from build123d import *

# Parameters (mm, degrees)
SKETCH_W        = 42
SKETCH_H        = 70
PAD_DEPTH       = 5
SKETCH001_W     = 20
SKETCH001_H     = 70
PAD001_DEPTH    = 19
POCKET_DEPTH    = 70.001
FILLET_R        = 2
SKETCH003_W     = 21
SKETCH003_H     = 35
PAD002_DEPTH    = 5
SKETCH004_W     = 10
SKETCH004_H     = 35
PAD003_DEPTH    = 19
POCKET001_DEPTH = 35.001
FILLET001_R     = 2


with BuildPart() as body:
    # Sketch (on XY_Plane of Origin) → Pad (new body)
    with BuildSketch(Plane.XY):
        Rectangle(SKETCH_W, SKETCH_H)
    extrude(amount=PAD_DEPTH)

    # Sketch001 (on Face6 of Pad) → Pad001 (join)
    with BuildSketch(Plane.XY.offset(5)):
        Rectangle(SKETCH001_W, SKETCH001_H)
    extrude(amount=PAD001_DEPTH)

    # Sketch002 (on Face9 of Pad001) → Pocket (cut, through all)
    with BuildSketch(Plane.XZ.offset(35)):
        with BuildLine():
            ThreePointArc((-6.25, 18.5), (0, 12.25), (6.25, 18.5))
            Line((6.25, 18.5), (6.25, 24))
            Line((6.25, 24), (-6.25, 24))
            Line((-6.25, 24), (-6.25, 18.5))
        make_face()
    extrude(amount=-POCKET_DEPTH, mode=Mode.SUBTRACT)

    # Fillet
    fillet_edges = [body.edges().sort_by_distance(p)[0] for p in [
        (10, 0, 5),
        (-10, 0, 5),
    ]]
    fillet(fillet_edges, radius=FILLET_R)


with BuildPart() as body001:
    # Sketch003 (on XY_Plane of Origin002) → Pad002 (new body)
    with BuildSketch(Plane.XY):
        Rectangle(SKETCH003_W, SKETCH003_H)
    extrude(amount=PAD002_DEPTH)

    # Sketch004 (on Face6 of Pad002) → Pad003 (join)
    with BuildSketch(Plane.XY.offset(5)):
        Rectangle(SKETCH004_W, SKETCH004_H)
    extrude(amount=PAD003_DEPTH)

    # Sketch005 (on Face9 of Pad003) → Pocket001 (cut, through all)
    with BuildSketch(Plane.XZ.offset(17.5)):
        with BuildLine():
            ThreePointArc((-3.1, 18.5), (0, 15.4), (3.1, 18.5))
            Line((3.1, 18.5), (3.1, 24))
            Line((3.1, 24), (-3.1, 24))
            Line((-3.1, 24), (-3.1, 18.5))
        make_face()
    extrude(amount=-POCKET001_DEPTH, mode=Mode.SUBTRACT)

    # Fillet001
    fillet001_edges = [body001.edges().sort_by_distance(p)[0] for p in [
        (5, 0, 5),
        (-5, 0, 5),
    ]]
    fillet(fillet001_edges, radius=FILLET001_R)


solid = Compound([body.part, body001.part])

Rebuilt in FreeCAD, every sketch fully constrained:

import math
import FreeCAD as App
import Part
import Sketcher
from FreeCAD import Vector


def edges_at(feature, points):
    """Names of the edges that pass closest to the given points."""
    edges = feature.Shape.Edges
    near = lambda p: min(range(len(edges)), key=lambda i: edges[i].distToShape(Part.Vertex(*p))[0])
    return sorted({f"Edge{near(p) + 1}" for p in points})


def add_polygon(sketch, points):
    """Adds a closed chain of lines whose ends are joined by coincident constraints."""
    first, n = sketch.GeometryCount, len(points)
    for a, b in zip(points, points[1:] + points[:1]):
        sketch.addGeometry(Part.LineSegment(App.Vector(*a, 0), App.Vector(*b, 0)), False)
    for i in range(n):
        sketch.addConstraint(Sketcher.Constraint("Coincident", first + i, 2, first + (i + 1) % n, 1))

doc = App.newDocument("Part")
body = doc.addObject("PartDesign::Body", "Body")

# Sketch on XY plane
sketch1 = doc.addObject("Sketcher::SketchObject", "Sketch")
body.addObject(sketch1)
sketch1.AttachmentSupport = (doc.XY_Plane, [""])
sketch1.MapMode = "FlatFace"
add_polygon(sketch1, [(-21, 35), (-21, -35), (21, -35), (21, 35)])  # lines 0-3
sketch1.addConstraint([
    Sketcher.Constraint("Vertical", 0),
    Sketcher.Constraint("Horizontal", 1),
    Sketcher.Constraint("Vertical", 2),
    Sketcher.Constraint("Horizontal", 3),
    Sketcher.Constraint("Symmetric", 0, 2, 2, 2, -1, 1),
    Sketcher.Constraint("DistanceX", 1, 1, 1, 2, 42.0),
    Sketcher.Constraint("DistanceY", 0, 2, 0, 1, 70.0),
])
pad1 = doc.addObject("PartDesign::Pad", "Pad")
body.addObject(pad1)
pad1.Profile = sketch1
pad1.Length = 5

# Sketch on XY plane
sketch2 = doc.addObject("Sketcher::SketchObject", "Sketch001")
body.addObject(sketch2)
sketch2.AttachmentSupport = (doc.XY_Plane, [""])
sketch2.MapMode = "FlatFace"
sketch2.AttachmentOffset = App.Placement(Vector(0, 0, 5), App.Rotation())
add_polygon(sketch2, [(-10, 35), (-10, -35), (10, -35), (10, 35)])  # lines 0-3
sketch2.addConstraint([
    Sketcher.Constraint("Vertical", 0),
    Sketcher.Constraint("Horizontal", 1),
    Sketcher.Constraint("Vertical", 2),
    Sketcher.Constraint("Horizontal", 3),
    Sketcher.Constraint("Symmetric", 0, 2, 2, 2, -1, 1),
    Sketcher.Constraint("DistanceX", 1, 1, 1, 2, 20.0),
    Sketcher.Constraint("DistanceY", 0, 2, 0, 1, 70.0),
])
pad2 = doc.addObject("PartDesign::Pad", "Pad001")
body.addObject(pad2)
pad2.Profile = sketch2
pad2.Length = 19

# Sketch on XZ plane
sketch3 = doc.addObject("Sketcher::SketchObject", "Sketch002")
body.addObject(sketch3)
sketch3.AttachmentSupport = (doc.XZ_Plane, [""])
sketch3.MapMode = "FlatFace"
sketch3.AttachmentOffset = App.Placement(Vector(0, 0, 35), App.Rotation())
sketch3.addGeometry([
    Part.ArcOfCircle(Part.Circle(Vector(0, 18, 0), Vector(0, 0, 1), 6), math.radians(180), math.radians(360)),
    Part.LineSegment(Vector(6, 18, 0), Vector(6, 24, 0)),
    Part.LineSegment(Vector(6, 24, 0), Vector(-6, 24, 0)),
    Part.LineSegment(Vector(-6, 24, 0), Vector(-6, 18, 0)),
], False)
sketch3.addConstraint([
    Sketcher.Constraint("Tangent", 0, 2, 1, 1),
    Sketcher.Constraint("Coincident", 1, 2, 2, 1),
    Sketcher.Constraint("Coincident", 2, 2, 3, 1),
    Sketcher.Constraint("Tangent", 3, 2, 0, 1),
    Sketcher.Constraint("Vertical", 1),
    Sketcher.Constraint("Horizontal", 2),
    Sketcher.Constraint("Vertical", 3),
    Sketcher.Constraint("PointOnObject", 0, 3, -2),
    Sketcher.Constraint("Radius", 0, 6.25),
    Sketcher.Constraint("DistanceY", 1, 1, 1, 2, 5.5),
    Sketcher.Constraint("DistanceY", -1, 1, 1, 2, 24.0),
])
pocket1 = doc.addObject("PartDesign::Pocket", "Pocket")
body.addObject(pocket1)
pocket1.Profile = sketch3
pocket1.Type = "ThroughAll"
doc.recompute()

fillet = doc.addObject("PartDesign::Fillet", "Fillet")
body.addObject(fillet)
fillet.Base = (pocket1, edges_at(pocket1, [(10, 0, 5), (-10, 0, 5)]))
fillet.Radius = 2
body2 = doc.addObject("PartDesign::Body", "Body001")

# Sketch on XY plane
sketch4 = doc.addObject("Sketcher::SketchObject", "Sketch003")
body2.addObject(sketch4)
sketch4.AttachmentSupport = (doc.getObject("XY_Plane001"), [""])
sketch4.MapMode = "FlatFace"
add_polygon(sketch4, [(-10, 18), (-10, -18), (10, -18), (10, 18)])  # lines 0-3
sketch4.addConstraint([
    Sketcher.Constraint("Vertical", 0),
    Sketcher.Constraint("Horizontal", 1),
    Sketcher.Constraint("Vertical", 2),
    Sketcher.Constraint("Horizontal", 3),
    Sketcher.Constraint("Symmetric", 0, 2, 2, 2, -1, 1),
    Sketcher.Constraint("DistanceX", 1, 1, 1, 2, 21.0),
    Sketcher.Constraint("DistanceY", 0, 2, 0, 1, 35.0),
])
pad3 = doc.addObject("PartDesign::Pad", "Pad002")
body2.addObject(pad3)
pad3.Profile = sketch4
pad3.Length = 5

# Sketch on XY plane
sketch5 = doc.addObject("Sketcher::SketchObject", "Sketch004")
body2.addObject(sketch5)
sketch5.AttachmentSupport = (doc.getObject("XY_Plane001"), [""])
sketch5.MapMode = "FlatFace"
sketch5.AttachmentOffset = App.Placement(Vector(0, 0, 5), App.Rotation())
add_polygon(sketch5, [(-5, 18), (-5, -18), (5, -18), (5, 18)])  # lines 0-3
sketch5.addConstraint([
    Sketcher.Constraint("Vertical", 0),
    Sketcher.Constraint("Horizontal", 1),
    Sketcher.Constraint("Vertical", 2),
    Sketcher.Constraint("Horizontal", 3),
    Sketcher.Constraint("Symmetric", 0, 2, 2, 2, -1, 1),
    Sketcher.Constraint("DistanceX", 1, 1, 1, 2, 10.0),
    Sketcher.Constraint("DistanceY", 0, 2, 0, 1, 35.0),
])
pad4 = doc.addObject("PartDesign::Pad", "Pad003")
body2.addObject(pad4)
pad4.Profile = sketch5
pad4.Length = 19

# Sketch on XZ plane
sketch6 = doc.addObject("Sketcher::SketchObject", "Sketch005")
body2.addObject(sketch6)
sketch6.AttachmentSupport = (doc.getObject("XZ_Plane001"), [""])
sketch6.MapMode = "FlatFace"
sketch6.AttachmentOffset = App.Placement(Vector(0, 0, 17.5), App.Rotation())
sketch6.addGeometry([
    Part.ArcOfCircle(Part.Circle(Vector(0, 18.5, 0), Vector(0, 0, 1), 3.1), math.radians(180), math.radians(360)),
    Part.LineSegment(Vector(3.1, 18.5, 0), Vector(3.1, 24, 0)),
    Part.LineSegment(Vector(3.1, 24, 0), Vector(-3.1, 24, 0)),
    Part.LineSegment(Vector(-3.1, 24, 0), Vector(-3.1, 18.5, 0)),
], False)
sketch6.addConstraint([
    Sketcher.Constraint("Tangent", 0, 2, 1, 1),
    Sketcher.Constraint("Coincident", 1, 2, 2, 1),
    Sketcher.Constraint("Coincident", 2, 2, 3, 1),
    Sketcher.Constraint("Tangent", 3, 2, 0, 1),
    Sketcher.Constraint("Vertical", 1),
    Sketcher.Constraint("Horizontal", 2),
    Sketcher.Constraint("Vertical", 3),
    Sketcher.Constraint("PointOnObject", 0, 3, -2),
    Sketcher.Constraint("Radius", 0, 3.1),
    Sketcher.Constraint("DistanceY", 1, 1, 1, 2, 5.5),
    Sketcher.Constraint("DistanceY", -1, 1, 1, 2, 24.0),
])
pocket2 = doc.addObject("PartDesign::Pocket", "Pocket001")
body2.addObject(pocket2)
pocket2.Profile = sketch6
pocket2.Type = "ThroughAll"
doc.recompute()

fillet2 = doc.addObject("PartDesign::Fillet", "Fillet001")
body2.addObject(fillet2)
fillet2.Base = (pocket2, edges_at(pocket2, [(5, 0, 5), (-5, 0, 5)]))
fillet2.Radius = 2

doc.recompute()
